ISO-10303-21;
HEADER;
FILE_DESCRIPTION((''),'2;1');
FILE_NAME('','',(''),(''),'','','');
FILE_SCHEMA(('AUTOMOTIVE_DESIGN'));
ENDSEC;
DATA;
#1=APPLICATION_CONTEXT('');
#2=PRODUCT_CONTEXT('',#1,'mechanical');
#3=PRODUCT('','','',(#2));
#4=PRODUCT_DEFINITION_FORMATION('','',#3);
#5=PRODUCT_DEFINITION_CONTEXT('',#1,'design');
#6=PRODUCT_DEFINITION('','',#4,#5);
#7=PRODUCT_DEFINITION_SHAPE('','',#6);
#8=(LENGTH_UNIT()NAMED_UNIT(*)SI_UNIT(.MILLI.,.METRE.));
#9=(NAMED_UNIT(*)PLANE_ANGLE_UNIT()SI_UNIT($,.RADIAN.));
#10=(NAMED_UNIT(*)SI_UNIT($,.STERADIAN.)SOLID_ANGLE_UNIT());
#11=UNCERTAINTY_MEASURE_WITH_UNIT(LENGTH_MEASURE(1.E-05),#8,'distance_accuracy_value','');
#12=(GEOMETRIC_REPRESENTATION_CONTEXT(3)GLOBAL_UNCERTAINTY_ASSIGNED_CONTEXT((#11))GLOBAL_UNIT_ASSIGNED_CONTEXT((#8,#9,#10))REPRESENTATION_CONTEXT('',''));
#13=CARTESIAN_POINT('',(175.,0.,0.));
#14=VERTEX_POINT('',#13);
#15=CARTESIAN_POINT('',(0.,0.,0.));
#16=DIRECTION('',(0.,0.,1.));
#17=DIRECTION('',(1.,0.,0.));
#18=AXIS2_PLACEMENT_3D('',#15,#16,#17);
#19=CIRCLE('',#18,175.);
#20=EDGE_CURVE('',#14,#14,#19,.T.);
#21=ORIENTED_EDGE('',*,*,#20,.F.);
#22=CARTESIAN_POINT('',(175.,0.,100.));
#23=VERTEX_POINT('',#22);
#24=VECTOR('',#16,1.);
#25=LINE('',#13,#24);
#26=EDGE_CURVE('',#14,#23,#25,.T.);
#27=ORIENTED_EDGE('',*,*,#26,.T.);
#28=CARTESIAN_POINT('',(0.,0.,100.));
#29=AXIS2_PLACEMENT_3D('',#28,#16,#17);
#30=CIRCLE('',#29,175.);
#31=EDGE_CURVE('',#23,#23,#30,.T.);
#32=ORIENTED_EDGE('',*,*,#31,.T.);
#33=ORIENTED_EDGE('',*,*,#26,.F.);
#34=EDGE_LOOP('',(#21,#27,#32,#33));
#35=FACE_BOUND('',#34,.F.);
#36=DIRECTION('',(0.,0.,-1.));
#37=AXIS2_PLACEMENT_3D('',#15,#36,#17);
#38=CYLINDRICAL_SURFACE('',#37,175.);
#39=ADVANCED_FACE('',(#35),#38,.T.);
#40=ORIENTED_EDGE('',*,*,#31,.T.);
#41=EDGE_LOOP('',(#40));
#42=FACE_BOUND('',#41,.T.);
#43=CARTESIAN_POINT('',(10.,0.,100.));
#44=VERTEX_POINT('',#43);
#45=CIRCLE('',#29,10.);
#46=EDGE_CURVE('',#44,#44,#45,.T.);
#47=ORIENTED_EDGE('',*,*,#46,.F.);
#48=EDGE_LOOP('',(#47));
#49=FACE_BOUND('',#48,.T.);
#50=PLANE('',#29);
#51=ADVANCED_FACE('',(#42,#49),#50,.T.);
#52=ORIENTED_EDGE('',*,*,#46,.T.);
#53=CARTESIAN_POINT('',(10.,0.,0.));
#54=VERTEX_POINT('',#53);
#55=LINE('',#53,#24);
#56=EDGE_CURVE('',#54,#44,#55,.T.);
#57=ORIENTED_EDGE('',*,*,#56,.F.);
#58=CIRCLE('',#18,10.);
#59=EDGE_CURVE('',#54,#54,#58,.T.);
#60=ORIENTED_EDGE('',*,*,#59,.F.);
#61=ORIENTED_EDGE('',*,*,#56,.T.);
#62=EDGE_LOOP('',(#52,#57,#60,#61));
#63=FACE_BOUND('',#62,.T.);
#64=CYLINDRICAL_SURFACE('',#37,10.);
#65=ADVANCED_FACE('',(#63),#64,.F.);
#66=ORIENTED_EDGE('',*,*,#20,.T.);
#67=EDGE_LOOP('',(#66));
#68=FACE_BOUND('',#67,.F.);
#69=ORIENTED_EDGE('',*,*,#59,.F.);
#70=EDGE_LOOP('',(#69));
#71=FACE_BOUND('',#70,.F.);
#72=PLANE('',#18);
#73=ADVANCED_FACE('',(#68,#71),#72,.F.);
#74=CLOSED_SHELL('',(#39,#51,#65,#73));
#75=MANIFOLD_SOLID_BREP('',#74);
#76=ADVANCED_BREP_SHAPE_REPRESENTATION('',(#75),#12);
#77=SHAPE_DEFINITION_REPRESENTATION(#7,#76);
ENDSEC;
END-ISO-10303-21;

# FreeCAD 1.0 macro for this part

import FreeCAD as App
import Part
import Sketcher
Q = App.Units.Quantity

doc = App.newDocument("Part")
body = doc.addObject("PartDesign::Body", "Body")

sketch1 = doc.addObject("Sketcher::SketchObject", "Sketch")
body.addObject(sketch1)
sketch1.AttachmentSupport = (doc.XY_Plane, [""])
sketch1.MapMode = "FlatFace"
sketch1.addGeometry([
    Part.Circle(App.Vector(0, 0, 0), App.Vector(0, 0, 1), 175),
    Part.Circle(App.Vector(0, 0, 0), App.Vector(0, 0, 1), 10),
], False)
sketch1.addConstraint([
    Sketcher.Constraint("Coincident", 0, 3, -1, 1),
    Sketcher.Constraint("Coincident", 1, 3, -1, 1),
    Sketcher.Constraint("Diameter", 0, Q("350 mm")),
    Sketcher.Constraint("Diameter", 1, Q("20 mm")),
])
pad1 = doc.addObject("PartDesign::Pad", "Pad")
body.addObject(pad1)
pad1.Profile = sketch1
pad1.Length = 100

doc.recompute()
